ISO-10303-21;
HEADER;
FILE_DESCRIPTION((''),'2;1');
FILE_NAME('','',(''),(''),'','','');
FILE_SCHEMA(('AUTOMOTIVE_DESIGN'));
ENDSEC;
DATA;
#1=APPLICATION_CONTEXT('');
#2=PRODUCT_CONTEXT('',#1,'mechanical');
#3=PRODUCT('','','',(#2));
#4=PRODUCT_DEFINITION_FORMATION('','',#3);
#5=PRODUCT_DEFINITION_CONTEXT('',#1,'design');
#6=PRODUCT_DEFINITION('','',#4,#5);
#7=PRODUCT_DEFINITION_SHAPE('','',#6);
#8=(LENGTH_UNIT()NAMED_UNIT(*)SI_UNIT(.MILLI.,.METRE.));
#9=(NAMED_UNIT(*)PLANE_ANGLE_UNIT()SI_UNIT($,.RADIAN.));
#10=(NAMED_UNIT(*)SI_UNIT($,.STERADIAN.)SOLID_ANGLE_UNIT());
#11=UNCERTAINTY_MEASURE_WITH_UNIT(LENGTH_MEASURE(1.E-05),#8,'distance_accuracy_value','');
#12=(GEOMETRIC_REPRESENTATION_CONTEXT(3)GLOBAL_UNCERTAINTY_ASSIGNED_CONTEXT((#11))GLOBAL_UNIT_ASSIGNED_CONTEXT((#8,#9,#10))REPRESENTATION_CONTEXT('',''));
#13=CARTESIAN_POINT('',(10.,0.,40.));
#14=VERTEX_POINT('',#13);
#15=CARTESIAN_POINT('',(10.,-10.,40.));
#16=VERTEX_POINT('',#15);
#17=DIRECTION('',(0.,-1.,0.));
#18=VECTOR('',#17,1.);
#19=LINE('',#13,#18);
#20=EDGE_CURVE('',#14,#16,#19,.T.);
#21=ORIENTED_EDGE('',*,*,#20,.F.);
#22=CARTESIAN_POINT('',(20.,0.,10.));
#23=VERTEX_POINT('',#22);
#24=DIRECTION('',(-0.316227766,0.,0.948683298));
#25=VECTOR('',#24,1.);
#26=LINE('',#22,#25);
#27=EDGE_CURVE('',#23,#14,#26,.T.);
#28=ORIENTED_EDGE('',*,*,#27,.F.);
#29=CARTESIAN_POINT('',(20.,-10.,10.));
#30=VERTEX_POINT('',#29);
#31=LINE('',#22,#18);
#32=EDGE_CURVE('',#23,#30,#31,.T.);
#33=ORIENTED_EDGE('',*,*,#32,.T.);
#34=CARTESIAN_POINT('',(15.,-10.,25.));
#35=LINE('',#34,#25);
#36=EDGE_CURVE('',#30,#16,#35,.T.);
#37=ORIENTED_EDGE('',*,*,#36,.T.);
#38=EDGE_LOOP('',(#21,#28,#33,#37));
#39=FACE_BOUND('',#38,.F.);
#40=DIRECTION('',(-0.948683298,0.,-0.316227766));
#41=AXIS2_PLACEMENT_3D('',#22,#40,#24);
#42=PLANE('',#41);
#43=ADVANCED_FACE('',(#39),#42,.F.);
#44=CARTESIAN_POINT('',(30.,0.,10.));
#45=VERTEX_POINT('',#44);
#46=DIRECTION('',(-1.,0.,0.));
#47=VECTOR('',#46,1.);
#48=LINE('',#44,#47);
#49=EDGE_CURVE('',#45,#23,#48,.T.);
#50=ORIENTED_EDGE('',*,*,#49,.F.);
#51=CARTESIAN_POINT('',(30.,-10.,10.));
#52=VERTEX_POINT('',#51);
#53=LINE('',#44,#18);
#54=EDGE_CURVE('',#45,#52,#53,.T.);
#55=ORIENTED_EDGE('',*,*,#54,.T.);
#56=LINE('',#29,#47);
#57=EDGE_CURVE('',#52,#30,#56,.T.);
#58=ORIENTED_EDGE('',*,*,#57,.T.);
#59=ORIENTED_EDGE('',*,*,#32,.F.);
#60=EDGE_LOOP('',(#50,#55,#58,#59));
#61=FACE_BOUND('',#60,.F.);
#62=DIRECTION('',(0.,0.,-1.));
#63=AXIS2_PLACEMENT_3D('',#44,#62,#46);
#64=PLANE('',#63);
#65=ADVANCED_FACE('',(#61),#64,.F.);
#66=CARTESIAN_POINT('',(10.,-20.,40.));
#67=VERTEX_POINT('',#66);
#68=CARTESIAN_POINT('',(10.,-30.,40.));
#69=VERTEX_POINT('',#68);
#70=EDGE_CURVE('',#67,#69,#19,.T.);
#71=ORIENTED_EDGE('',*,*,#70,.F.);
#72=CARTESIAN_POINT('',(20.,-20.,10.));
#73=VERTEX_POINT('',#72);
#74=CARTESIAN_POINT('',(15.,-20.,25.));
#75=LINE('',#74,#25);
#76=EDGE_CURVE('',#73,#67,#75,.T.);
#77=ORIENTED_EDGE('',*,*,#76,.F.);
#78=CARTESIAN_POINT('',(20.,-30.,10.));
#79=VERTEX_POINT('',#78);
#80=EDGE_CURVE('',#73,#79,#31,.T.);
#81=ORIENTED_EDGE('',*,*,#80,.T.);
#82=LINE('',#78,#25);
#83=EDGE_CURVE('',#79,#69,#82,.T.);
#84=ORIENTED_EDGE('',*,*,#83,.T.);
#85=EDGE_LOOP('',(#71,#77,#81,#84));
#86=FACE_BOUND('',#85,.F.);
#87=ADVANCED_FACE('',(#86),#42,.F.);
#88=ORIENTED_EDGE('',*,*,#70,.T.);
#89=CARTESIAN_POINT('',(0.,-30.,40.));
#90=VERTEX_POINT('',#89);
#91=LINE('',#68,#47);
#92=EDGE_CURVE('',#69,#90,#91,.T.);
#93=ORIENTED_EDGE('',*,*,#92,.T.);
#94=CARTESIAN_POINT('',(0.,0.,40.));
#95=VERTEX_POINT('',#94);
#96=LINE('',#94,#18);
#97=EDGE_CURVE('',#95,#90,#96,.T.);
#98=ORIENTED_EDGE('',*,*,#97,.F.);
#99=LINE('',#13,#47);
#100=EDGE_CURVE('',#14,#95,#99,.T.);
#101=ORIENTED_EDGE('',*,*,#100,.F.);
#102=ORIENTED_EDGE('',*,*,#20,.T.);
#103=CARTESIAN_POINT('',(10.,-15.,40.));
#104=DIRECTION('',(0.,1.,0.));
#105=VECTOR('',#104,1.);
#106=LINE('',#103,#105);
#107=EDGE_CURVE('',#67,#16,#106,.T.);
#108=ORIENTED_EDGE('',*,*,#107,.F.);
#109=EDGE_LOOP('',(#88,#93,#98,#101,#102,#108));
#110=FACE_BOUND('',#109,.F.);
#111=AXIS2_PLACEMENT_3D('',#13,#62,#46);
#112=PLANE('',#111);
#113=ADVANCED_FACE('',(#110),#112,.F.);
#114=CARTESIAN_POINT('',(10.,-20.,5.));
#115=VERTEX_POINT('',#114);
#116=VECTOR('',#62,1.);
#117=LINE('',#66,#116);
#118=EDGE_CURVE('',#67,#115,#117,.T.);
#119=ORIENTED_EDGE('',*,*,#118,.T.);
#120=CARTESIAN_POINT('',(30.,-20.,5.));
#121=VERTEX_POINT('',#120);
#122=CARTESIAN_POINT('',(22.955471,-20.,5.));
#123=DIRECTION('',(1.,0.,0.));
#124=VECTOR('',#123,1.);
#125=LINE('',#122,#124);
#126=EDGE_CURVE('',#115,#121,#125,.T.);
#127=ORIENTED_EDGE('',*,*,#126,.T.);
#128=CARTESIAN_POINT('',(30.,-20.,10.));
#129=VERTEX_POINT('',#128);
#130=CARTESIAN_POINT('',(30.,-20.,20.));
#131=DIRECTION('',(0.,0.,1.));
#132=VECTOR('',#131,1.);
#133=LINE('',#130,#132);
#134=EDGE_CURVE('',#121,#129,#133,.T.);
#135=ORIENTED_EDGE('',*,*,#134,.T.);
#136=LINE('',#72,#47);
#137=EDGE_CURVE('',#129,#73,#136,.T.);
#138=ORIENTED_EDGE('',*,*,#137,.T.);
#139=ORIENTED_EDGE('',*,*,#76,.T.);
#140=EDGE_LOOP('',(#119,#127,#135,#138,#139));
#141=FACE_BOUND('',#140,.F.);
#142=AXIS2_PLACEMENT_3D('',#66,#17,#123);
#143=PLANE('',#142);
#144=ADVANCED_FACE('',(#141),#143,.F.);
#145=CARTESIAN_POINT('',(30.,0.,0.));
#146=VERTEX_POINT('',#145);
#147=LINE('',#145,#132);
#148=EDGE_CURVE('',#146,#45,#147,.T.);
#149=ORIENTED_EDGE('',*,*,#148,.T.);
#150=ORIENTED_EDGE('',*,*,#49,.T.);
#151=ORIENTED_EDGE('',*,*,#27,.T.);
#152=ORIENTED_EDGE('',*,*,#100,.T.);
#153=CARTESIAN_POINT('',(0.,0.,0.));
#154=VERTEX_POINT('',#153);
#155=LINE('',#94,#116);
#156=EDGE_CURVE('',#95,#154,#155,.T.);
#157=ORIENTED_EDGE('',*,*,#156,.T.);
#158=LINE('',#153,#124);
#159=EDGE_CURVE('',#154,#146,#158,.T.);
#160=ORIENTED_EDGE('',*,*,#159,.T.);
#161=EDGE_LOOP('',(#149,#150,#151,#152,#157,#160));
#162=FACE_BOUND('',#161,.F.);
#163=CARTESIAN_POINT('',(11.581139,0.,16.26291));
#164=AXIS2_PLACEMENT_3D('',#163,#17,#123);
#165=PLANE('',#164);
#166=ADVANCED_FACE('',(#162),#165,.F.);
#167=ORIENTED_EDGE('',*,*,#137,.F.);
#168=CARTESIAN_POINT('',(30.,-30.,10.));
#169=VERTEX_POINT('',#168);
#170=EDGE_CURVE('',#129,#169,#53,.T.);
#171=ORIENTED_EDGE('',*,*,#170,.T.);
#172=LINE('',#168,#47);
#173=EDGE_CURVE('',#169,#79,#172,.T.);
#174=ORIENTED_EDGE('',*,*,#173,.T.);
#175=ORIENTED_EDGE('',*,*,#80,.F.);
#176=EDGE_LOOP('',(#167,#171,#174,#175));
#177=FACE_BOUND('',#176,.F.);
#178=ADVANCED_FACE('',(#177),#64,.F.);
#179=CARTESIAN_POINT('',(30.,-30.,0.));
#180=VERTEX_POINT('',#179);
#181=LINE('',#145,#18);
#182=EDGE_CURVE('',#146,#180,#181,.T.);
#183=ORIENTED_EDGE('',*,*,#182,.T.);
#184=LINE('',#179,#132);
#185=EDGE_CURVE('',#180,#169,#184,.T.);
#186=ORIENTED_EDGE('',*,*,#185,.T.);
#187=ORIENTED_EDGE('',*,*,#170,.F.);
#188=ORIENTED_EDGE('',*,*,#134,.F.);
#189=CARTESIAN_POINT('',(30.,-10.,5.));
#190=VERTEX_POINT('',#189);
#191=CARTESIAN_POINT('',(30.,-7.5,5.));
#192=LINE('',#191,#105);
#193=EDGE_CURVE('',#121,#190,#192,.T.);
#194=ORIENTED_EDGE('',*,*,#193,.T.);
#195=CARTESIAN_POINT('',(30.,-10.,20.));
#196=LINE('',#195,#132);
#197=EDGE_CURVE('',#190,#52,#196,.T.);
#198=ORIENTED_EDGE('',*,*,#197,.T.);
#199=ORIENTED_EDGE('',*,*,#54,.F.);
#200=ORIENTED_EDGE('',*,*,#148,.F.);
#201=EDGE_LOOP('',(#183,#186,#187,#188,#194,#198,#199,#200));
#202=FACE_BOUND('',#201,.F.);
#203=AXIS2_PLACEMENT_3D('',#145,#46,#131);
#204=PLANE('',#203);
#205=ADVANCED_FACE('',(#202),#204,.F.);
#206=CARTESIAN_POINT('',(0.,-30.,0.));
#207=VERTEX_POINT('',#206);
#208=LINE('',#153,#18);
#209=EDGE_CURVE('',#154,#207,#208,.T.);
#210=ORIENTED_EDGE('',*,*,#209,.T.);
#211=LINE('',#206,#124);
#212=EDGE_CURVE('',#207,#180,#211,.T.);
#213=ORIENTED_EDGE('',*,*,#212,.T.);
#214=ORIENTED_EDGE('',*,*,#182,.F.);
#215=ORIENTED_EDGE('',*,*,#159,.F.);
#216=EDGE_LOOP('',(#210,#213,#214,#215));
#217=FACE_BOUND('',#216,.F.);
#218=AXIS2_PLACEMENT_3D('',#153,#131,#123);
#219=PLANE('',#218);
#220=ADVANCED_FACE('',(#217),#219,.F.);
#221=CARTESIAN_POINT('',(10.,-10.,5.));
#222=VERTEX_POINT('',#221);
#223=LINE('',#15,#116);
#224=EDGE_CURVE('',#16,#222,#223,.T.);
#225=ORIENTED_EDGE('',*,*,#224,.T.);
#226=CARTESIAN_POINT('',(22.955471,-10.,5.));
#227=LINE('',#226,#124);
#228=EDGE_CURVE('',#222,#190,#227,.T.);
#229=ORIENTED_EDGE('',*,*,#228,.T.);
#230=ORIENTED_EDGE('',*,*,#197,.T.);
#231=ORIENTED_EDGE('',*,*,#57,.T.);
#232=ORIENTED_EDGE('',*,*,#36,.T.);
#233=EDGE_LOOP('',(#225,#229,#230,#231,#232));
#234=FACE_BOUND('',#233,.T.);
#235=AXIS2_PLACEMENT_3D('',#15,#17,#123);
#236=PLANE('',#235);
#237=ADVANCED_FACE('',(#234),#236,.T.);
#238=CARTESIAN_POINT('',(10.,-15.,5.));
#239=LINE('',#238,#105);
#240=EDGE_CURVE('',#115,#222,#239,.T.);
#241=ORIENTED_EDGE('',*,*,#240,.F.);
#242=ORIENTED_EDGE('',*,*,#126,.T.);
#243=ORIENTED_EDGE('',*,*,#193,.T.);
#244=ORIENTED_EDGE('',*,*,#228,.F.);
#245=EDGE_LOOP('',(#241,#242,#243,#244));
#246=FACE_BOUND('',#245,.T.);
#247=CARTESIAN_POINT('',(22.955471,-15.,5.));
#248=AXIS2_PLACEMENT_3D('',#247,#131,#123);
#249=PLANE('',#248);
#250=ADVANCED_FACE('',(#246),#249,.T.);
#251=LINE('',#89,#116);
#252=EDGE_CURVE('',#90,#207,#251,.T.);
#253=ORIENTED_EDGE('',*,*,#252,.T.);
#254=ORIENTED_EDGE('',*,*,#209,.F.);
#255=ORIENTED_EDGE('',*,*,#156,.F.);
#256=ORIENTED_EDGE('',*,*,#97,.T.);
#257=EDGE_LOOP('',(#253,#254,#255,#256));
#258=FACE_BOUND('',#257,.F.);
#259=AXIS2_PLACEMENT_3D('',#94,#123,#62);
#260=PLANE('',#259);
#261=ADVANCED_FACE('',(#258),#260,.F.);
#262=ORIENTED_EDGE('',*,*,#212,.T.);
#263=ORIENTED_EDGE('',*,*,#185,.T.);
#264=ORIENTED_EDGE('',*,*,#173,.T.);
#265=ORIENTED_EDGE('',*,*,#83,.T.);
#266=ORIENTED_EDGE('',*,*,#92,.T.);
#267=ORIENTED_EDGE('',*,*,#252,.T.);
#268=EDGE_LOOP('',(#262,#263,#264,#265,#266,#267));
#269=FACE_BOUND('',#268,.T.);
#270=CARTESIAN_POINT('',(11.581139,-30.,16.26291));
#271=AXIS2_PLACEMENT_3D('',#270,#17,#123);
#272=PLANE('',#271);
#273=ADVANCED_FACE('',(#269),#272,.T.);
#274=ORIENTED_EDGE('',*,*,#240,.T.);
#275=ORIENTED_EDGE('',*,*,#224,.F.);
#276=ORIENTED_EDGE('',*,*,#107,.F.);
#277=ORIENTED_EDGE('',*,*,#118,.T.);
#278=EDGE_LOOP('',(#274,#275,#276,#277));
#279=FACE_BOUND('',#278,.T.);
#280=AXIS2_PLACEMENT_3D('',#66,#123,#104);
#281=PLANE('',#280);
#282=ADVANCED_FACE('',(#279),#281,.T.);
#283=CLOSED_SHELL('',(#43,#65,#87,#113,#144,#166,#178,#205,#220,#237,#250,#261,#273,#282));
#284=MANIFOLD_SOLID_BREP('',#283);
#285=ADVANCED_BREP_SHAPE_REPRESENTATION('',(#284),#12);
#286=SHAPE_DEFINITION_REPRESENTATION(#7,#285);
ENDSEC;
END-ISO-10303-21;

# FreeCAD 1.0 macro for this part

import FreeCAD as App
import Part
import Sketcher


def add_polygon(sketch, points):
    """Adds a closed chain of lines whose ends are joined by coincident constraints."""
    first, n = sketch.GeometryCount, len(points)
    for a, b in zip(points, points[1:] + points[:1]):
        sketch.addGeometry(Part.LineSegment(App.Vector(*a, 0), App.Vector(*b, 0)), False)
    for i in range(n):
        sketch.addConstraint(Sketcher.Constraint("Coincident", first + i, 2, first + (i + 1) % n, 1))

doc = App.newDocument("Part")
body = doc.addObject("PartDesign::Body", "Body")

# Sketch on XZ plane
sketch1 = doc.addObject("Sketcher::SketchObject", "Sketch")
body.addObject(sketch1)
sketch1.AttachmentSupport = (doc.XZ_Plane, [""])
sketch1.MapMode = "FlatFace"
add_polygon(sketch1, [(10, 40), (0, 40), (0, 0), (30, 0), (30, 10), (20, 10)])  # lines 0-5
sketch1.addConstraint([
    Sketcher.Constraint("Horizontal", 0),
    Sketcher.Constraint("Vertical", 1),
    Sketcher.Constraint("Horizontal", 2),
    Sketcher.Constraint("Vertical", 3),
    Sketcher.Constraint("Horizontal", 4),
    Sketcher.Constraint("Coincident", 1, 2, -1, 1),
    Sketcher.Constraint("Equal", 0, 4),
    Sketcher.Constraint("Equal", 4, 3),
    Sketcher.Constraint("DistanceX", 0, 2, 0, 1, 10.0),
    Sketcher.Constraint("DistanceX", 2, 1, 2, 2, 30.0),
    Sketcher.Constraint("DistanceY", 1, 2, 1, 1, 40.0),
])
pad1 = doc.addObject("PartDesign::Pad", "Pad")
body.addObject(pad1)
pad1.Profile = sketch1
pad1.Length = 30

# Sketch on XY plane
sketch2 = doc.addObject("Sketcher::SketchObject", "Sketch001")
body.addObject(sketch2)
sketch2.AttachmentSupport = (doc.XY_Plane, [""])
sketch2.MapMode = "FlatFace"
sketch2.AttachmentOffset = App.Placement(App.Vector(0, 0, 40), App.Rotation())
add_polygon(sketch2, [(10, -10), (10, -20), (36, -20), (36, -10)])  # lines 0-3
sketch2.addConstraint([
    Sketcher.Constraint("Vertical", 0),
    Sketcher.Constraint("Horizontal", 1),
    Sketcher.Constraint("Vertical", 2),
    Sketcher.Constraint("Horizontal", 3),
    Sketcher.Constraint("DistanceY", 0, 2, 0, 1, 10.0),
    Sketcher.Constraint("DistanceX", -1, 1, 0, 2, 10.0),
    Sketcher.Constraint("DistanceY", 0, 2, -1, 1, 20.0),
    Sketcher.Constraint("DistanceX", 1, 1, 1, 2, 25.910942),
])
pocket1 = doc.addObject("PartDesign::Pocket", "Pocket")
body.addObject(pocket1)
pocket1.Profile = sketch2
pocket1.Length = 35

doc.recompute()
